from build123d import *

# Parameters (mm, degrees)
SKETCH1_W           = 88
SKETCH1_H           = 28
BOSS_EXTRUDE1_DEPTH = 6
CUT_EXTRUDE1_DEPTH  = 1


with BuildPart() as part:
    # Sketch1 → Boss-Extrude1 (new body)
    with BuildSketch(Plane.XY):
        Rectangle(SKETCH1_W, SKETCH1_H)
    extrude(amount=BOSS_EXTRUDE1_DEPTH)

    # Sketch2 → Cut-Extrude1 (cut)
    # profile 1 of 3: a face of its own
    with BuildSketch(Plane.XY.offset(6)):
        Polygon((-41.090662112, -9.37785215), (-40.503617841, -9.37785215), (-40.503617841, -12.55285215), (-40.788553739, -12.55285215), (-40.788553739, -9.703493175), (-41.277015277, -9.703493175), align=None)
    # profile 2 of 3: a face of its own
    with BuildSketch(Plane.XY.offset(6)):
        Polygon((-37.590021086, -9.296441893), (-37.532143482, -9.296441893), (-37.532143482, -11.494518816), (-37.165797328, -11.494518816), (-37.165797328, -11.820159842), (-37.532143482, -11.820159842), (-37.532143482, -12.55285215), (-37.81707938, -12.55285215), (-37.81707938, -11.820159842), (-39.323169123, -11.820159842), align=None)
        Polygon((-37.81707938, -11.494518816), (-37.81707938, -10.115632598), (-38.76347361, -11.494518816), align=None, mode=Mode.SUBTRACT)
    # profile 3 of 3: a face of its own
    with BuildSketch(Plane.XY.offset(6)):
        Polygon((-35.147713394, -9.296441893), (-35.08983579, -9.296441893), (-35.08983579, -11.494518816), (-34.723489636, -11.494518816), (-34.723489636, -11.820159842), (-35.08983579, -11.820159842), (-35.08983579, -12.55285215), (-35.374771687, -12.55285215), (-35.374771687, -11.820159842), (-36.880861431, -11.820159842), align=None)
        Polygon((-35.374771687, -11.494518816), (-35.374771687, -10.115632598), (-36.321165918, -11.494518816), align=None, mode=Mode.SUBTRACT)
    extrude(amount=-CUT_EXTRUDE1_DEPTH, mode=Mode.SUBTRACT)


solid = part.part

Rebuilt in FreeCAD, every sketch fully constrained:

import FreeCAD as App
import Part
import Sketcher
from FreeCAD import Vector
Q = App.Units.Quantity


def add_polygon(sketch, points):
    """Adds a closed chain of lines whose ends are joined by coincident constraints."""
    first, n = sketch.GeometryCount, len(points)
    for a, b in zip(points, points[1:] + points[:1]):
        sketch.addGeometry(Part.LineSegment(App.Vector(*a, 0), App.Vector(*b, 0)), False)
    for i in range(n):
        sketch.addConstraint(Sketcher.Constraint("Coincident", first + i, 2, first + (i + 1) % n, 1))

doc = App.newDocument("Part")
body = doc.addObject("PartDesign::Body", "Body")

sketch1 = body.newObject("Sketcher::SketchObject", "Sketch")
sketch1.AttachmentSupport = (doc.getObject("XY_Plane"), [""])
sketch1.MapMode = "FlatFace"
add_polygon(sketch1, [(-44, 14), (-44, -14), (44, -14), (44, 14)])
sketch1.addConstraint([
    Sketcher.Constraint("Vertical", 0),
    Sketcher.Constraint("Horizontal", 1),
    Sketcher.Constraint("Vertical", 2),
    Sketcher.Constraint("Horizontal", 3),
    Sketcher.Constraint("Symmetric", 0, 2, 2, 2, -1, 1),
    Sketcher.Constraint("DistanceX", 1, 1, 1, 2, Q("88 mm")),
    Sketcher.Constraint("DistanceY", 0, 2, 0, 1, Q("28 mm")),
])
pad1 = body.newObject("PartDesign::Pad", "Pad")
pad1.Profile = sketch1
pad1.Length = 6

sketch2 = body.newObject("Sketcher::SketchObject", "Sketch001")
sketch2.AttachmentSupport = (doc.getObject("XY_Plane"), [""])
sketch2.MapMode = "FlatFace"
sketch2.AttachmentOffset = App.Placement(Vector(0, 0, 6), App.Rotation())
add_polygon(sketch2, [(-40.503618, -9.377852), (-41.090662, -9.377852), (-41.277015, -9.703493), (-40.788554, -9.703493), (-40.788554, -12.552852), (-40.503618, -12.552852)])
add_polygon(sketch2, [(-37.532143, -9.296442), (-37.590021, -9.296442), (-39.323169, -11.82016), (-37.817079, -11.82016), (-37.817079, -12.552852), (-37.532143, -12.552852), (-37.532143, -11.82016), (-37.165797, -11.82016), (-37.165797, -11.494519), (-37.532143, -11.494519)])
add_polygon(sketch2, [(-37.817079, -11.494519), (-38.763474, -11.494519), (-37.817079, -10.115633)])
add_polygon(sketch2, [(-35.089836, -9.296442), (-35.147713, -9.296442), (-36.880861, -11.82016), (-35.374772, -11.82016), (-35.374772, -12.552852), (-35.089836, -12.552852), (-35.089836, -11.82016), (-34.72349, -11.82016), (-34.72349, -11.494519), (-35.089836, -11.494519)])
add_polygon(sketch2, [(-35.374772, -11.494519), (-36.321166, -11.494519), (-35.374772, -10.115633)])
sketch2.addConstraint([
    Sketcher.Constraint("Horizontal", 0),
    Sketcher.Constraint("Horizontal", 2),
    Sketcher.Constraint("Vertical", 3),
    Sketcher.Constraint("Horizontal", 4),
    Sketcher.Constraint("Vertical", 5),
    Sketcher.Constraint("Horizontal", 6),
    Sketcher.Constraint("Horizontal", 8),
    Sketcher.Constraint("Vertical", 9),
    Sketcher.Constraint("Horizontal", 10),
    Sketcher.Constraint("Vertical", 11),
    Sketcher.Constraint("Horizontal", 12),
    Sketcher.Constraint("Vertical", 13),
    Sketcher.Constraint("Horizontal", 14),
    Sketcher.Constraint("Vertical", 15),
    Sketcher.Constraint("Horizontal", 16),
    Sketcher.Constraint("Vertical", 18),
    Sketcher.Constraint("Horizontal", 19),
    Sketcher.Constraint("Horizontal", 21),
    Sketcher.Constraint("Vertical", 22),
    Sketcher.Constraint("Horizontal", 23),
    Sketcher.Constraint("Vertical", 24),
    Sketcher.Constraint("Horizontal", 25),
    Sketcher.Constraint("Vertical", 26),
    Sketcher.Constraint("Horizontal", 27),
    Sketcher.Constraint("Vertical", 28),
    Sketcher.Constraint("Horizontal", 29),
    Sketcher.Constraint("Vertical", 31),
    Sketcher.Constraint("Parallel", 7, 20),
    Sketcher.Constraint("Parallel", 17, 30),
    Sketcher.Constraint("Horizontal", 4, 2, 9, 2),
    Sketcher.Constraint("Horizontal", 8, 2, 11, 2),
    Sketcher.Constraint("Horizontal", 14, 2, 16, 2),
    Sketcher.Constraint("Horizontal", 15, 2, 19, 2),
    Sketcher.Constraint("Horizontal", 12, 2, 20, 2),
    Sketcher.Constraint("Horizontal", 10, 2, 22, 2),
    Sketcher.Constraint("Horizontal", 21, 2, 24, 2),
    Sketcher.Constraint("Horizontal", 18, 2, 26, 2),
    Sketcher.Constraint("Horizontal", 27, 2, 29, 2),
    Sketcher.Constraint("Horizontal", 17, 2, 30, 2),
    Sketcher.Constraint("Vertical", 11, 2, 14, 2),
    Sketcher.Constraint("Vertical", 9, 2, 17, 2),
    Sketcher.Constraint("Vertical", 24, 2, 27, 2),
    Sketcher.Constraint("Vertical", 22, 2, 30, 2),
    Sketcher.Constraint("Equal", 4, 10),
    Sketcher.Constraint("Equal", 6, 19),
    Sketcher.Constraint("Equal", 8, 21),
    Sketcher.Constraint("Equal", 14, 25),
    Sketcher.Constraint("DistanceY", 5, 1, 5, 2, Q("3.175 mm")),
    Sketcher.Constraint("DistanceX", 2, 1, 2, 2, Q("0.488462 mm")),
    Sketcher.Constraint("DistanceX", 8, 1, 8, 2, Q("1.50609 mm")),
    Sketcher.Constraint("DistanceY", 3, 2, 3, 1, Q("2.849359 mm")),
    Sketcher.Constraint("DistanceY", 13, 1, 13, 2, Q("0.325641 mm")),
    Sketcher.Constraint("Distance", 7, Q("3.061528 mm")),
    Sketcher.Constraint("Distance", 17, Q("1.67242 mm")),
    Sketcher.Constraint("DistanceX", 0, 2, 0, 1, Q("0.587044 mm")),
    Sketcher.Constraint("DistanceX", 4, 1, 4, 2, Q("0.284936 mm")),
    Sketcher.Constraint("DistanceX", 6, 2, 6, 1, Q("0.057878 mm")),
    Sketcher.Constraint("DistanceX", 12, 1, 12, 2, Q("0.366346 mm")),
    Sketcher.Constraint("DistanceX", 16, 2, 16, 1, Q("0.946394 mm")),
    Sketcher.Constraint("DistanceY", 9, 2, 9, 1, Q("0.732692 mm")),
    Sketcher.Constraint("DistanceX", 6, 2, -1, 1, Q("37.590021 mm")),
    Sketcher.Constraint("DistanceY", 6, 2, -1, 1, Q("9.296442 mm")),
    Sketcher.Constraint("DistanceX", 20, 2, -1, 1, Q("36.880861 mm")),
    Sketcher.Constraint("DistanceX", 0, 2, 6, 2, Q("3.500641 mm")),
])
pocket1 = body.newObject("PartDesign::Pocket", "Pocket")
pocket1.Profile = sketch2
pocket1.Length = 1

doc.recompute()
